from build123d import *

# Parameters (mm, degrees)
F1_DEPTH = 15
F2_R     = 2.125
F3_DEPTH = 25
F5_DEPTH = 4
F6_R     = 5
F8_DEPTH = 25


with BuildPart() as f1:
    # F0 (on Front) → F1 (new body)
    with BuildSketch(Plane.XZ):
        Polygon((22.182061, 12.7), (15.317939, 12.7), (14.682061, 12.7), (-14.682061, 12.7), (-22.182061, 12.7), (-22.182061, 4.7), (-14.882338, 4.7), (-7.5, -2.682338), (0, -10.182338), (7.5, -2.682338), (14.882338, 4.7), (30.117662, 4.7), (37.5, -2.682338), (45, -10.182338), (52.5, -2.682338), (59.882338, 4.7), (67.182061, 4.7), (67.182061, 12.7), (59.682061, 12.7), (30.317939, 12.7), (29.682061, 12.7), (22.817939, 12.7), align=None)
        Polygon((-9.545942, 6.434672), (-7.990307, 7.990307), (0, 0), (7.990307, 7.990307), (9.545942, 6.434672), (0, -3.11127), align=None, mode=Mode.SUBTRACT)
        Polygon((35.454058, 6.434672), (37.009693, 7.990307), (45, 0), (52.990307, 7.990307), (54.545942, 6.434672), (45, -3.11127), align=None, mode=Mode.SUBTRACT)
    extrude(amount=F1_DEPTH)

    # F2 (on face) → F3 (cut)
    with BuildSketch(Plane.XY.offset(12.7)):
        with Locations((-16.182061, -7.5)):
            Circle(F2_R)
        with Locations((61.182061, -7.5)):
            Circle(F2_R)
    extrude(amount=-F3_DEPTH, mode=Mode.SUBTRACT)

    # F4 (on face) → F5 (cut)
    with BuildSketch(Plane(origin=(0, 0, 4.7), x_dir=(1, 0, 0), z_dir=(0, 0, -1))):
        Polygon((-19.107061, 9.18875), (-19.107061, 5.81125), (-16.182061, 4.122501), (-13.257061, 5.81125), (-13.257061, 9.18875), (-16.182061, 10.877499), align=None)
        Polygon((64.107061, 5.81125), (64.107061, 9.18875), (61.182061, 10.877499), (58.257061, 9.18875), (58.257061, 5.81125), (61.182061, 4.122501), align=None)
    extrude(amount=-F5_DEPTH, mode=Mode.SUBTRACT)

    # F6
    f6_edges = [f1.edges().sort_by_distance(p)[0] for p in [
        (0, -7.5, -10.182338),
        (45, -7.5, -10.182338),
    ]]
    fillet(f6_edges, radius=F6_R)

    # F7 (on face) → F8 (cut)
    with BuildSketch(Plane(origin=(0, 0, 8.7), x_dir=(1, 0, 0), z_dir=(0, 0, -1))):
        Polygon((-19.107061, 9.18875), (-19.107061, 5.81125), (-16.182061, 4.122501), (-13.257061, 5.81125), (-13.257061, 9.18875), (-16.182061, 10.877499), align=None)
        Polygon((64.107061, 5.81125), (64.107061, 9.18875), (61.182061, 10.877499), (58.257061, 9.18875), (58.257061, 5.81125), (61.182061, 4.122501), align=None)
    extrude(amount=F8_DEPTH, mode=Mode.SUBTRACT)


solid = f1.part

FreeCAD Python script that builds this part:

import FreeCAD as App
import Part
import Sketcher
Q = App.Units.Quantity


def edges_at(feature, points):
    """Names of the edges that pass closest to the given points."""
    edges = feature.Shape.Edges
    near = lambda p: min(range(len(edges)), key=lambda i: edges[i].distToShape(Part.Vertex(*p))[0])
    return sorted({f"Edge{near(p) + 1}" for p in points})

doc = App.newDocument("Part")
body = doc.addObject("PartDesign::Body", "Body")

# Sketch on XZ plane
sketch1 = doc.addObject("Sketcher::SketchObject", "Sketch")
body.addObject(sketch1)
sketch1.AttachmentSupport = (doc.XZ_Plane, [""])
sketch1.MapMode = "FlatFace"
sketch1.addGeometry(Part.LineSegment(App.Vector(-22.2, 12.7, 0), App.Vector(-22.2, 4.7, 0)), False)
sketch1.addGeometry(Part.LineSegment(App.Vector(-22.2, 4.7, 0), App.Vector(-14.9, 4.7, 0)), False)
sketch1.addGeometry(Part.LineSegment(App.Vector(-14.9, 4.7, 0), App.Vector(0, -10.2, 0)), False)
sketch1.addGeometry(Part.LineSegment(App.Vector(0, -10.2, 0), App.Vector(14.9, 4.7, 0)), False)
sketch1.addGeometry(Part.LineSegment(App.Vector(14.9, 4.7, 0), App.Vector(30.1, 4.7, 0)), False)
sketch1.addGeometry(Part.LineSegment(App.Vector(30.1, 4.7, 0), App.Vector(45, -10.2, 0)), False)
sketch1.addGeometry(Part.LineSegment(App.Vector(45, -10.2, 0), App.Vector(59.9, 4.7, 0)), False)
sketch1.addGeometry(Part.LineSegment(App.Vector(59.9, 4.7, 0), App.Vector(67.2, 4.7, 0)), False)
sketch1.addGeometry(Part.LineSegment(App.Vector(67.2, 4.7, 0), App.Vector(67.2, 12.7, 0)), False)
sketch1.addGeometry(Part.LineSegment(App.Vector(67.2, 12.7, 0), App.Vector(-22.2, 12.7, 0)), False)
sketch1.addGeometry(Part.LineSegment(App.Vector(0, -3.1, 0), App.Vector(-9.5, 6.4, 0)), False)
sketch1.addGeometry(Part.LineSegment(App.Vector(-9.5, 6.4, 0), App.Vector(-8, 8, 0)), False)
sketch1.addGeometry(Part.LineSegment(App.Vector(-8, 8, 0), App.Vector(0, 0, 0)), False)
sketch1.addGeometry(Part.LineSegment(App.Vector(0, 0, 0), App.Vector(8, 8, 0)), False)
sketch1.addGeometry(Part.LineSegment(App.Vector(8, 8, 0), App.Vector(9.5, 6.4, 0)), False)
sketch1.addGeometry(Part.LineSegment(App.Vector(9.5, 6.4, 0), App.Vector(0, -3.1, 0)), False)
sketch1.addGeometry(Part.LineSegment(App.Vector(45, -3.1, 0), App.Vector(35.5, 6.4, 0)), False)
sketch1.addGeometry(Part.LineSegment(App.Vector(35.5, 6.4, 0), App.Vector(37, 8, 0)), False)
sketch1.addGeometry(Part.LineSegment(App.Vector(37, 8, 0), App.Vector(45, 0, 0)), False)
sketch1.addGeometry(Part.LineSegment(App.Vector(45, 0, 0), App.Vector(53, 8, 0)), False)
sketch1.addGeometry(Part.LineSegment(App.Vector(53, 8, 0), App.Vector(54.5, 6.4, 0)), False)
sketch1.addGeometry(Part.LineSegment(App.Vector(54.5, 6.4, 0), App.Vector(45, -3.1, 0)), False)
sketch1.addConstraint(Sketcher.Constraint("Coincident", 0, 2, 1, 1))
sketch1.addConstraint(Sketcher.Constraint("Coincident", 1, 2, 2, 1))
sketch1.addConstraint(Sketcher.Constraint("Coincident", 2, 2, 3, 1))
sketch1.addConstraint(Sketcher.Constraint("Coincident", 3, 2, 4, 1))
sketch1.addConstraint(Sketcher.Constraint("Coincident", 4, 2, 5, 1))
sketch1.addConstraint(Sketcher.Constraint("Coincident", 5, 2, 6, 1))
sketch1.addConstraint(Sketcher.Constraint("Coincident", 6, 2, 7, 1))
sketch1.addConstraint(Sketcher.Constraint("Coincident", 7, 2, 8, 1))
sketch1.addConstraint(Sketcher.Constraint("Coincident", 8, 2, 9, 1))
sketch1.addConstraint(Sketcher.Constraint("Coincident", 9, 2, 0, 1))
sketch1.addConstraint(Sketcher.Constraint("Coincident", 10, 2, 11, 1))
sketch1.addConstraint(Sketcher.Constraint("Coincident", 11, 2, 12, 1))
sketch1.addConstraint(Sketcher.Constraint("Coincident", 12, 2, 13, 1))
sketch1.addConstraint(Sketcher.Constraint("Coincident", 13, 2, 14, 1))
sketch1.addConstraint(Sketcher.Constraint("Coincident", 14, 2, 15, 1))
sketch1.addConstraint(Sketcher.Constraint("Coincident", 15, 2, 10, 1))
sketch1.addConstraint(Sketcher.Constraint("Coincident", 16, 2, 17, 1))
sketch1.addConstraint(Sketcher.Constraint("Coincident", 17, 2, 18, 1))
sketch1.addConstraint(Sketcher.Constraint("Coincident", 18, 2, 19, 1))
sketch1.addConstraint(Sketcher.Constraint("Coincident", 19, 2, 20, 1))
sketch1.addConstraint(Sketcher.Constraint("Coincident", 20, 2, 21, 1))
sketch1.addConstraint(Sketcher.Constraint("Coincident", 21, 2, 16, 1))
sketch1.addConstraint(Sketcher.Constraint("Vertical", 0))
sketch1.addConstraint(Sketcher.Constraint("Horizontal", 1))
sketch1.addConstraint(Sketcher.Constraint("Horizontal", 4))
sketch1.addConstraint(Sketcher.Constraint("Horizontal", 7))
sketch1.addConstraint(Sketcher.Constraint("Vertical", 8))
sketch1.addConstraint(Sketcher.Constraint("Horizontal", 9))
sketch1.addConstraint(Sketcher.Constraint("Coincident", 12, 2, -1, 1))
sketch1.addConstraint(Sketcher.Constraint("Symmetric", 1, 2, 3, 2, -2))
sketch1.addConstraint(Sketcher.Constraint("Symmetric", 11, 2, 13, 2, -2))
sketch1.addConstraint(Sketcher.Constraint("Symmetric", 10, 2, 14, 2, -2))
sketch1.addConstraint(Sketcher.Constraint("PointOnObject", 2, 2, -2))
sketch1.addConstraint(Sketcher.Constraint("PointOnObject", 15, 2, -2))
sketch1.addConstraint(Sketcher.Constraint("PointOnObject", 18, 2, -1))
sketch1.addConstraint(Sketcher.Constraint("Perpendicular", 2, 3))
sketch1.addConstraint(Sketcher.Constraint("Perpendicular", 3, 5))
sketch1.addConstraint(Sketcher.Constraint("Perpendicular", 5, 6))
sketch1.addConstraint(Sketcher.Constraint("Perpendicular", 6, 10))
sketch1.addConstraint(Sketcher.Constraint("Perpendicular", 10, 11))
sketch1.addConstraint(Sketcher.Constraint("Perpendicular", 11, 12))
sketch1.addConstraint(Sketcher.Constraint("Perpendicular", 15, 16))
sketch1.addConstraint(Sketcher.Constraint("Perpendicular", 16, 17))
sketch1.addConstraint(Sketcher.Constraint("Perpendicular", 17, 18))
sketch1.addConstraint(Sketcher.Constraint("Perpendicular", 18, 19))
sketch1.addConstraint(Sketcher.Constraint("Perpendicular", 19, 20))
sketch1.addConstraint(Sketcher.Constraint("Perpendicular", 20, 21))
sketch1.addConstraint(Sketcher.Constraint("Horizontal", 2, 2, 5, 2))
sketch1.addConstraint(Sketcher.Constraint("Horizontal", 4, 2, 6, 2))
sketch1.addConstraint(Sketcher.Constraint("Horizontal", 14, 2, 16, 2))
sketch1.addConstraint(Sketcher.Constraint("Horizontal", 13, 2, 17, 2))
sketch1.addConstraint(Sketcher.Constraint("Horizontal", 17, 2, 19, 2))
sketch1.addConstraint(Sketcher.Constraint("Horizontal", 16, 2, 20, 2))
sketch1.addConstraint(Sketcher.Constraint("Vertical", 5, 2, 18, 2))
sketch1.addConstraint(Sketcher.Constraint("Equal", 1, 7))
sketch1.addConstraint(Sketcher.Constraint("DistanceY", 0, 2, 0, 1, 8.0))
sketch1.addConstraint(Sketcher.Constraint("DistanceX", -1, 1, 5, 2, 45.0))
sketch1.addConstraint(Sketcher.Constraint("Distance", 10, 13.500001))
sketch1.addConstraint(Sketcher.Constraint("Distance", 11, 2.2))
sketch1.addConstraint(Sketcher.Constraint("DistanceY", -1, 1, 0, 2, 4.7))
sketch1.addConstraint(Sketcher.Constraint("DistanceX", 0, 2, 3, 2, 37.064399))
sketch1.addConstraint(Sketcher.Constraint("DistanceX", 1, 1, 1, 2, 7.299723))
pad1 = doc.addObject("PartDesign::Pad", "Pad")
body.addObject(pad1)
pad1.Profile = sketch1
pad1.Length = 15

# Sketch on XY plane
sketch2 = doc.addObject("Sketcher::SketchObject", "Sketch001")
body.addObject(sketch2)
sketch2.AttachmentSupport = (doc.XY_Plane, [""])
sketch2.MapMode = "FlatFace"
sketch2.AttachmentOffset = App.Placement(App.Vector(0, 0, 12.7), App.Rotation())
sketch2.addGeometry(Part.Circle(App.Vector(-16.2, -7.5, 0), App.Vector(0, 0, 1), 2.1), False)
sketch2.addGeometry(Part.Circle(App.Vector(61.2, -7.5, 0), App.Vector(0, 0, 1), 2.1), False)
sketch2.addConstraint(Sketcher.Constraint("Equal", 0, 1))
sketch2.addConstraint(Sketcher.Constraint("Horizontal", 0, 3, 1, 3))
sketch2.addConstraint(Sketcher.Constraint("Diameter", 0, 4.25))
sketch2.addConstraint(Sketcher.Constraint("DistanceY", 0, 3, -1, 1, 7.5))
sketch2.addConstraint(Sketcher.Constraint("DistanceX", 0, 3, -1, 1, 16.182061))
sketch2.addConstraint(Sketcher.Constraint("DistanceX", -1, 1, 1, 3, 61.182061))
pocket1 = doc.addObject("PartDesign::Pocket", "Pocket")
body.addObject(pocket1)
pocket1.Profile = sketch2
pocket1.Length = 25

# Sketch on XY plane
sketch3 = doc.addObject("Sketcher::SketchObject", "Sketch002")
body.addObject(sketch3)
sketch3.AttachmentSupport = (doc.XY_Plane, [""])
sketch3.MapMode = "FlatFace"
sketch3.AttachmentOffset = App.Placement(App.Vector(0, 0, 4.7), App.Rotation())
sketch3.addGeometry(Part.LineSegment(App.Vector(-19.1, -9.2, 0), App.Vector(-19.1, -5.8, 0)), False)
sketch3.addGeometry(Part.LineSegment(App.Vector(-19.1, -5.8, 0), App.Vector(-16.2, -4.1, 0)), False)
sketch3.addGeometry(Part.LineSegment(App.Vector(-16.2, -4.1, 0), App.Vector(-13.3, -5.8, 0)), False)
sketch3.addGeometry(Part.LineSegment(App.Vector(-13.3, -5.8, 0), App.Vector(-13.3, -9.2, 0)), False)
sketch3.addGeometry(Part.LineSegment(App.Vector(-13.3, -9.2, 0), App.Vector(-16.2, -10.9, 0)), False)
sketch3.addGeometry(Part.LineSegment(App.Vector(-16.2, -10.9, 0), App.Vector(-19.1, -9.2, 0)), False)
sketch3.addGeometry(Part.LineSegment(App.Vector(64.1, -5.8, 0), App.Vector(64.1, -9.2, 0)), False)
sketch3.addGeometry(Part.LineSegment(App.Vector(64.1, -9.2, 0), App.Vector(61.2, -10.9, 0)), False)
sketch3.addGeometry(Part.LineSegment(App.Vector(61.2, -10.9, 0), App.Vector(58.3, -9.2, 0)), False)
sketch3.addGeometry(Part.LineSegment(App.Vector(58.3, -9.2, 0), App.Vector(58.3, -5.8, 0)), False)
sketch3.addGeometry(Part.LineSegment(App.Vector(58.3, -5.8, 0), App.Vector(61.2, -4.1, 0)), False)
sketch3.addGeometry(Part.LineSegment(App.Vector(61.2, -4.1, 0), App.Vector(64.1, -5.8, 0)), False)
sketch3.addConstraint(Sketcher.Constraint("Coincident", 0, 2, 1, 1))
sketch3.addConstraint(Sketcher.Constraint("Coincident", 1, 2, 2, 1))
sketch3.addConstraint(Sketcher.Constraint("Coincident", 2, 2, 3, 1))
sketch3.addConstraint(Sketcher.Constraint("Coincident", 3, 2, 4, 1))
sketch3.addConstraint(Sketcher.Constraint("Coincident", 4, 2, 5, 1))
sketch3.addConstraint(Sketcher.Constraint("Coincident", 5, 2, 0, 1))
sketch3.addConstraint(Sketcher.Constraint("Coincident", 6, 2, 7, 1))
sketch3.addConstraint(Sketcher.Constraint("Coincident", 7, 2, 8, 1))
sketch3.addConstraint(Sketcher.Constraint("Coincident", 8, 2, 9, 1))
sketch3.addConstraint(Sketcher.Constraint("Coincident", 9, 2, 10, 1))
sketch3.addConstraint(Sketcher.Constraint("Coincident", 10, 2, 11, 1))
sketch3.addConstraint(Sketcher.Constraint("Coincident", 11, 2, 6, 1))
sketch3.addConstraint(Sketcher.Constraint("Vertical", 0))
sketch3.addConstraint(Sketcher.Constraint("Vertical", 3))
sketch3.addConstraint(Sketcher.Constraint("Vertical", 6))
sketch3.addConstraint(Sketcher.Constraint("Vertical", 9))
sketch3.addConstraint(Sketcher.Constraint("Parallel", 1, 4))
sketch3.addConstraint(Sketcher.Constraint("Parallel", 2, 5))
sketch3.addConstraint(Sketcher.Constraint("Parallel", 4, 7))
sketch3.addConstraint(Sketcher.Constraint("Parallel", 5, 8))
sketch3.addConstraint(Sketcher.Constraint("Parallel", 7, 10))
sketch3.addConstraint(Sketcher.Constraint("Parallel", 8, 11))
sketch3.addConstraint(Sketcher.Constraint("Horizontal", 0, 2, 2, 2))
sketch3.addConstraint(Sketcher.Constraint("Horizontal", 3, 2, 5, 2))
sketch3.addConstraint(Sketcher.Constraint("Horizontal", 5, 2, 6, 2))
sketch3.addConstraint(Sketcher.Constraint("Horizontal", 4, 2, 7, 2))
sketch3.addConstraint(Sketcher.Constraint("Horizontal", 6, 2, 8, 2))
sketch3.addConstraint(Sketcher.Constraint("Horizontal", 2, 2, 9, 2))
sketch3.addConstraint(Sketcher.Constraint("Horizontal", 1, 2, 10, 2))
sketch3.addConstraint(Sketcher.Constraint("Vertical", 1, 2, 4, 2))
sketch3.addConstraint(Sketcher.Constraint("Angle", 1, Q("29.999992 deg")))
sketch3.addConstraint(Sketcher.Constraint("DistanceX", 0, 2, 2, 2, 5.85))
sketch3.addConstraint(Sketcher.Constraint("DistanceY", 0, 1, 0, 2, 3.3775))
sketch3.addConstraint(Sketcher.Constraint("DistanceY", 1, 2, -1, 1, 4.122501))
sketch3.addConstraint(Sketcher.Constraint("DistanceX", 0, 2, -1, 1, 19.107061))
sketch3.addConstraint(Sketcher.Constraint("DistanceX", -1, 1, 6, 2, 64.107061))
pocket2 = doc.addObject("PartDesign::Pocket", "Pocket001")
body.addObject(pocket2)
pocket2.Profile = sketch3
pocket2.Length = 4
pocket2.Reversed = True
doc.recompute()

fillet = doc.addObject("PartDesign::Fillet", "Fillet")
body.addObject(fillet)
fillet.Base = (pocket2, edges_at(pocket2, [(0, -7.5, -10.182), (45, -7.5, -10.182)]))
fillet.Radius = 5

# Sketch on XY plane
sketch4 = doc.addObject("Sketcher::SketchObject", "Sketch003")
body.addObject(sketch4)
sketch4.AttachmentSupport = (doc.XY_Plane, [""])
sketch4.MapMode = "FlatFace"
sketch4.AttachmentOffset = App.Placement(App.Vector(0, 0, 8.7), App.Rotation())
sketch4.addGeometry(Part.LineSegment(App.Vector(-19.1, -9.2, 0), App.Vector(-19.1, -5.8, 0)), False)
sketch4.addGeometry(Part.LineSegment(App.Vector(-19.1, -5.8, 0), App.Vector(-16.2, -4.1, 0)), False)
sketch4.addGeometry(Part.LineSegment(App.Vector(-16.2, -4.1, 0), App.Vector(-13.3, -5.8, 0)), False)
sketch4.addGeometry(Part.LineSegment(App.Vector(-13.3, -5.8, 0), App.Vector(-13.3, -9.2, 0)), False)
sketch4.addGeometry(Part.LineSegment(App.Vector(-13.3, -9.2, 0), App.Vector(-16.2, -10.9, 0)), False)
sketch4.addGeometry(Part.LineSegment(App.Vector(-16.2, -10.9, 0), App.Vector(-19.1, -9.2, 0)), False)
sketch4.addGeometry(Part.LineSegment(App.Vector(64.1, -5.8, 0), App.Vector(64.1, -9.2, 0)), False)
sketch4.addGeometry(Part.LineSegment(App.Vector(64.1, -9.2, 0), App.Vector(61.2, -10.9, 0)), False)
sketch4.addGeometry(Part.LineSegment(App.Vector(61.2, -10.9, 0), App.Vector(58.3, -9.2, 0)), False)
sketch4.addGeometry(Part.LineSegment(App.Vector(58.3, -9.2, 0), App.Vector(58.3, -5.8, 0)), False)
sketch4.addGeometry(Part.LineSegment(App.Vector(58.3, -5.8, 0), App.Vector(61.2, -4.1, 0)), False)
sketch4.addGeometry(Part.LineSegment(App.Vector(61.2, -4.1, 0), App.Vector(64.1, -5.8, 0)), False)
sketch4.addConstraint(Sketcher.Constraint("Coincident", 0, 2, 1, 1))
sketch4.addConstraint(Sketcher.Constraint("Coincident", 1, 2, 2, 1))
sketch4.addConstraint(Sketcher.Constraint("Coincident", 2, 2, 3, 1))
sketch4.addConstraint(Sketcher.Constraint("Coincident", 3, 2, 4, 1))
sketch4.addConstraint(Sketcher.Constraint("Coincident", 4, 2, 5, 1))
sketch4.addConstraint(Sketcher.Constraint("Coincident", 5, 2, 0, 1))
sketch4.addConstraint(Sketcher.Constraint("Coincident", 6, 2, 7, 1))
sketch4.addConstraint(Sketcher.Constraint("Coincident", 7, 2, 8, 1))
sketch4.addConstraint(Sketcher.Constraint("Coincident", 8, 2, 9, 1))
sketch4.addConstraint(Sketcher.Constraint("Coincident", 9, 2, 10, 1))
sketch4.addConstraint(Sketcher.Constraint("Coincident", 10, 2, 11, 1))
sketch4.addConstraint(Sketcher.Constraint("Coincident", 11, 2, 6, 1))
sketch4.addConstraint(Sketcher.Constraint("Vertical", 0))
sketch4.addConstraint(Sketcher.Constraint("Vertical", 3))
sketch4.addConstraint(Sketcher.Constraint("Vertical", 6))
sketch4.addConstraint(Sketcher.Constraint("Vertical", 9))
sketch4.addConstraint(Sketcher.Constraint("Parallel", 1, 4))
sketch4.addConstraint(Sketcher.Constraint("Parallel", 2, 5))
sketch4.addConstraint(Sketcher.Constraint("Parallel", 4, 7))
sketch4.addConstraint(Sketcher.Constraint("Parallel", 5, 8))
sketch4.addConstraint(Sketcher.Constraint("Parallel", 7, 10))
sketch4.addConstraint(Sketcher.Constraint("Parallel", 8, 11))
sketch4.addConstraint(Sketcher.Constraint("Horizontal", 0, 2, 2, 2))
sketch4.addConstraint(Sketcher.Constraint("Horizontal", 3, 2, 5, 2))
sketch4.addConstraint(Sketcher.Constraint("Horizontal", 5, 2, 6, 2))
sketch4.addConstraint(Sketcher.Constraint("Horizontal", 4, 2, 7, 2))
sketch4.addConstraint(Sketcher.Constraint("Horizontal", 6, 2, 8, 2))
sketch4.addConstraint(Sketcher.Constraint("Horizontal", 2, 2, 9, 2))
sketch4.addConstraint(Sketcher.Constraint("Horizontal", 1, 2, 10, 2))
sketch4.addConstraint(Sketcher.Constraint("Vertical", 1, 2, 4, 2))
sketch4.addConstraint(Sketcher.Constraint("Angle", 1, Q("29.999992 deg")))
sketch4.addConstraint(Sketcher.Constraint("DistanceX", 0, 2, 2, 2, 5.85))
sketch4.addConstraint(Sketcher.Constraint("DistanceY", 0, 1, 0, 2, 3.3775))
sketch4.addConstraint(Sketcher.Constraint("DistanceY", 1, 2, -1, 1, 4.122501))
sketch4.addConstraint(Sketcher.Constraint("DistanceX", 0, 2, -1, 1, 19.107061))
sketch4.addConstraint(Sketcher.Constraint("DistanceX", -1, 1, 6, 2, 64.107061))
pocket3 = doc.addObject("PartDesign::Pocket", "Pocket002")
body.addObject(pocket3)
pocket3.Profile = sketch4
pocket3.Length = 25

doc.recompute()
